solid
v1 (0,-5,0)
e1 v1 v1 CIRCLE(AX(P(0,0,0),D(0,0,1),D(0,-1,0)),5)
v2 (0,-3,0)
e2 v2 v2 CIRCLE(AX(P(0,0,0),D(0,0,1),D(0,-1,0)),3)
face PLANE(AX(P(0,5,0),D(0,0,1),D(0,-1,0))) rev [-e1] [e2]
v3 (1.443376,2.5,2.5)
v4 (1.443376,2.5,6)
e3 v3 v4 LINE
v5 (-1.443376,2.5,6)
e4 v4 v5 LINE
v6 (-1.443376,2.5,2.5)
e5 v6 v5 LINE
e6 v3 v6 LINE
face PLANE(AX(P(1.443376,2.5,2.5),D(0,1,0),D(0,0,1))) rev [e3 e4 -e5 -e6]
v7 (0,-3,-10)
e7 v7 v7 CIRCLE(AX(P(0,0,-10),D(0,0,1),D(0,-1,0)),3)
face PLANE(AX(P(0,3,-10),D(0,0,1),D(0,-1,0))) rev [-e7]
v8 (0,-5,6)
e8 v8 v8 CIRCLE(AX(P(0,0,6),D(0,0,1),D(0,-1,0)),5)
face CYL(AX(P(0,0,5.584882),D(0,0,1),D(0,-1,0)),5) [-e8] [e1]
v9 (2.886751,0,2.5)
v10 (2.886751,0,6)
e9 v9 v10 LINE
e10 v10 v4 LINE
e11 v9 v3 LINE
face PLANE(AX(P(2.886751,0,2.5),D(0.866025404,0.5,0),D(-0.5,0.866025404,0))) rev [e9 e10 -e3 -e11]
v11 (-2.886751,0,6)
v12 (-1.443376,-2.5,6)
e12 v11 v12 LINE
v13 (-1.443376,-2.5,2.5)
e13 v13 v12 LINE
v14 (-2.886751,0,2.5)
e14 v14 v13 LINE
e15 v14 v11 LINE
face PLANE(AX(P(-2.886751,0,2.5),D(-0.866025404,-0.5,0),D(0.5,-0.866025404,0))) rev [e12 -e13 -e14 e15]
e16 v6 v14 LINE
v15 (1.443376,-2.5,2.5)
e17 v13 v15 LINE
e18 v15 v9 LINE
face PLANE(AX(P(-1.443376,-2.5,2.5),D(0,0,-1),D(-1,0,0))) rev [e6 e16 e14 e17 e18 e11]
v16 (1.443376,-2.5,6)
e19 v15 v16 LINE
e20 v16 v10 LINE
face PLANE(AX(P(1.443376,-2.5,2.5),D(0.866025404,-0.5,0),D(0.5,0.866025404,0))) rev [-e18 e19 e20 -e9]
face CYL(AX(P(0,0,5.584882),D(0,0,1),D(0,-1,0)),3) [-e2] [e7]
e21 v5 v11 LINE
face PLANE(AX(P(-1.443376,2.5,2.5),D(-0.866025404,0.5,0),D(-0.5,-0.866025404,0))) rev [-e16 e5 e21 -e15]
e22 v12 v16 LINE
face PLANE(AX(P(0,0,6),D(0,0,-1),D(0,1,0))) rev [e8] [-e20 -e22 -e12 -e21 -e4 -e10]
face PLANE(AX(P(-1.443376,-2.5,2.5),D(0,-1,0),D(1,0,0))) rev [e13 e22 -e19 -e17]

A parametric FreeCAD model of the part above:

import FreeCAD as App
import Part
import Sketcher

V = App.Vector
Q = App.Units.Quantity

doc = App.newDocument("Part")
params = doc.addObject("Spreadsheet::Sheet", "Params")
for row, (alias, value) in enumerate([
    ("sketch1_width", "5 mm"),
    ("sketch1_width2", "3 mm"),
    ("sketch1_height", "16 mm"),
    ("sketch1_height2", "10 mm"),
    ("revolution_angle", "360 deg"),
    ("pocket1_length", "3.5 mm"),
], start=1):
    params.set(f"A{row}", alias)
    params.set(f"B{row}", "=" + value)
    params.setAlias(f"B{row}", alias)

body = doc.addObject("PartDesign::Body", "Body")

# Sketch on YZ plane
sketch1 = doc.addObject("Sketcher::SketchObject", "Sketch")
body.addObject(sketch1)
sketch1.AttachmentSupport = (doc.YZ_Plane, [""])
sketch1.MapMode = "FlatFace"
sketch1.addGeometry(Part.LineSegment(V(5, 6, 0), V(0, 6, 0)), False)
sketch1.addGeometry(Part.LineSegment(V(0, 6, 0), V(0, -10, 0)), False)
sketch1.addGeometry(Part.LineSegment(V(0, -10, 0), V(3, -10, 0)), False)
sketch1.addGeometry(Part.LineSegment(V(3, -10, 0), V(3, 0, 0)), False)
sketch1.addGeometry(Part.LineSegment(V(3, 0, 0), V(5, 0, 0)), False)
sketch1.addGeometry(Part.LineSegment(V(5, 0, 0), V(5, 6, 0)), False)
sketch1.addConstraint(Sketcher.Constraint("Coincident", 0, 2, 1, 1))
sketch1.addConstraint(Sketcher.Constraint("Coincident", 1, 2, 2, 1))
sketch1.addConstraint(Sketcher.Constraint("Coincident", 2, 2, 3, 1))
sketch1.addConstraint(Sketcher.Constraint("Coincident", 3, 2, 4, 1))
sketch1.addConstraint(Sketcher.Constraint("Coincident", 4, 2, 5, 1))
sketch1.addConstraint(Sketcher.Constraint("Coincident", 5, 2, 0, 1))
sketch1.addConstraint(Sketcher.Constraint("Horizontal", 0))
sketch1.addConstraint(Sketcher.Constraint("Vertical", 1))
sketch1.addConstraint(Sketcher.Constraint("Horizontal", 2))
sketch1.addConstraint(Sketcher.Constraint("Vertical", 3))
sketch1.addConstraint(Sketcher.Constraint("Horizontal", 4))
sketch1.addConstraint(Sketcher.Constraint("Vertical", 5))
sketch1.addConstraint(Sketcher.Constraint("PointOnObject", 0, 2, -2))
sketch1.addConstraint(Sketcher.Constraint("PointOnObject", 3, 2, -1))
sketch1.addConstraint(Sketcher.Constraint("DistanceX", 0, 2, 0, 1, Q("5 mm")))
sketch1.addConstraint(Sketcher.Constraint("DistanceX", 2, 1, 2, 2, Q("3 mm")))
sketch1.addConstraint(Sketcher.Constraint("DistanceY", 1, 2, 1, 1, Q("16 mm")))
sketch1.addConstraint(Sketcher.Constraint("DistanceY", 3, 1, 3, 2, Q("10 mm")))
sketch1.setExpression("Constraints[14]", "Params.sketch1_width")
sketch1.setExpression("Constraints[15]", "Params.sketch1_width2")
sketch1.setExpression("Constraints[16]", "Params.sketch1_height")
sketch1.setExpression("Constraints[17]", "Params.sketch1_height2")
revolution = doc.addObject("PartDesign::Revolution", "Revolution")
body.addObject(revolution)
revolution.Profile = sketch1
revolution.ReferenceAxis = (sketch1, ["V_Axis"])
revolution.setExpression("Angle", "Params.revolution_angle")

# Sketch on XY plane
sketch2 = doc.addObject("Sketcher::SketchObject", "Sketch001")
body.addObject(sketch2)
sketch2.AttachmentSupport = (doc.XY_Plane, [""])
sketch2.MapMode = "FlatFace"
sketch2.AttachmentOffset = App.Placement(V(0, 0, 6), App.Rotation())
sketch2.addGeometry(Part.LineSegment(V(1.443376, -2.5, 0), V(2.886751, 0, 0)), False)
sketch2.addGeometry(Part.LineSegment(V(2.886751, 0, 0), V(1.443376, 2.5, 0)), False)
sketch2.addGeometry(Part.LineSegment(V(1.443376, 2.5, 0), V(-1.443376, 2.5, 0)), False)
sketch2.addGeometry(Part.LineSegment(V(-1.443376, 2.5, 0), V(-2.886751, 0, 0)), False)
sketch2.addGeometry(Part.LineSegment(V(-2.886751, 0, 0), V(-1.443376, -2.5, 0)), False)
sketch2.addGeometry(Part.LineSegment(V(-1.443376, -2.5, 0), V(1.443376, -2.5, 0)), False)
sketch2.addConstraint(Sketcher.Constraint("Coincident", 0, 2, 1, 1))
sketch2.addConstraint(Sketcher.Constraint("Coincident", 1, 2, 2, 1))
sketch2.addConstraint(Sketcher.Constraint("Coincident", 2, 2, 3, 1))
sketch2.addConstraint(Sketcher.Constraint("Coincident", 3, 2, 4, 1))
sketch2.addConstraint(Sketcher.Constraint("Coincident", 4, 2, 5, 1))
sketch2.addConstraint(Sketcher.Constraint("Coincident", 5, 2, 0, 1))
sketch2.addConstraint(Sketcher.Constraint("Horizontal", 2))
sketch2.addConstraint(Sketcher.Constraint("Horizontal", 5))
sketch2.addConstraint(Sketcher.Constraint("Symmetric", 0, 2, 3, 2, -1, 1))
sketch2.addConstraint(Sketcher.Constraint("Symmetric", 1, 2, 4, 2, -1, 1))
sketch2.addConstraint(Sketcher.Constraint("PointOnObject", 0, 2, -1))
sketch2.addConstraint(Sketcher.Constraint("Parallel", 0, 3))
sketch2.addConstraint(Sketcher.Constraint("Vertical", 2, 2, 4, 2))
sketch2.addConstraint(Sketcher.Constraint("Angle", 0, Q("60 deg")))
sketch2.addConstraint(Sketcher.Constraint("DistanceY", 4, 2, 2, 2, Q("5 mm")))
sketch2.addConstraint(Sketcher.Constraint("DistanceX", 2, 2, 2, 1, Q("2.886751 mm")))
pocket1 = doc.addObject("PartDesign::Pocket", "Pocket")
body.addObject(pocket1)
pocket1.Profile = sketch2
pocket1.setExpression("Length", "Params.pocket1_length")

doc.recompute()
